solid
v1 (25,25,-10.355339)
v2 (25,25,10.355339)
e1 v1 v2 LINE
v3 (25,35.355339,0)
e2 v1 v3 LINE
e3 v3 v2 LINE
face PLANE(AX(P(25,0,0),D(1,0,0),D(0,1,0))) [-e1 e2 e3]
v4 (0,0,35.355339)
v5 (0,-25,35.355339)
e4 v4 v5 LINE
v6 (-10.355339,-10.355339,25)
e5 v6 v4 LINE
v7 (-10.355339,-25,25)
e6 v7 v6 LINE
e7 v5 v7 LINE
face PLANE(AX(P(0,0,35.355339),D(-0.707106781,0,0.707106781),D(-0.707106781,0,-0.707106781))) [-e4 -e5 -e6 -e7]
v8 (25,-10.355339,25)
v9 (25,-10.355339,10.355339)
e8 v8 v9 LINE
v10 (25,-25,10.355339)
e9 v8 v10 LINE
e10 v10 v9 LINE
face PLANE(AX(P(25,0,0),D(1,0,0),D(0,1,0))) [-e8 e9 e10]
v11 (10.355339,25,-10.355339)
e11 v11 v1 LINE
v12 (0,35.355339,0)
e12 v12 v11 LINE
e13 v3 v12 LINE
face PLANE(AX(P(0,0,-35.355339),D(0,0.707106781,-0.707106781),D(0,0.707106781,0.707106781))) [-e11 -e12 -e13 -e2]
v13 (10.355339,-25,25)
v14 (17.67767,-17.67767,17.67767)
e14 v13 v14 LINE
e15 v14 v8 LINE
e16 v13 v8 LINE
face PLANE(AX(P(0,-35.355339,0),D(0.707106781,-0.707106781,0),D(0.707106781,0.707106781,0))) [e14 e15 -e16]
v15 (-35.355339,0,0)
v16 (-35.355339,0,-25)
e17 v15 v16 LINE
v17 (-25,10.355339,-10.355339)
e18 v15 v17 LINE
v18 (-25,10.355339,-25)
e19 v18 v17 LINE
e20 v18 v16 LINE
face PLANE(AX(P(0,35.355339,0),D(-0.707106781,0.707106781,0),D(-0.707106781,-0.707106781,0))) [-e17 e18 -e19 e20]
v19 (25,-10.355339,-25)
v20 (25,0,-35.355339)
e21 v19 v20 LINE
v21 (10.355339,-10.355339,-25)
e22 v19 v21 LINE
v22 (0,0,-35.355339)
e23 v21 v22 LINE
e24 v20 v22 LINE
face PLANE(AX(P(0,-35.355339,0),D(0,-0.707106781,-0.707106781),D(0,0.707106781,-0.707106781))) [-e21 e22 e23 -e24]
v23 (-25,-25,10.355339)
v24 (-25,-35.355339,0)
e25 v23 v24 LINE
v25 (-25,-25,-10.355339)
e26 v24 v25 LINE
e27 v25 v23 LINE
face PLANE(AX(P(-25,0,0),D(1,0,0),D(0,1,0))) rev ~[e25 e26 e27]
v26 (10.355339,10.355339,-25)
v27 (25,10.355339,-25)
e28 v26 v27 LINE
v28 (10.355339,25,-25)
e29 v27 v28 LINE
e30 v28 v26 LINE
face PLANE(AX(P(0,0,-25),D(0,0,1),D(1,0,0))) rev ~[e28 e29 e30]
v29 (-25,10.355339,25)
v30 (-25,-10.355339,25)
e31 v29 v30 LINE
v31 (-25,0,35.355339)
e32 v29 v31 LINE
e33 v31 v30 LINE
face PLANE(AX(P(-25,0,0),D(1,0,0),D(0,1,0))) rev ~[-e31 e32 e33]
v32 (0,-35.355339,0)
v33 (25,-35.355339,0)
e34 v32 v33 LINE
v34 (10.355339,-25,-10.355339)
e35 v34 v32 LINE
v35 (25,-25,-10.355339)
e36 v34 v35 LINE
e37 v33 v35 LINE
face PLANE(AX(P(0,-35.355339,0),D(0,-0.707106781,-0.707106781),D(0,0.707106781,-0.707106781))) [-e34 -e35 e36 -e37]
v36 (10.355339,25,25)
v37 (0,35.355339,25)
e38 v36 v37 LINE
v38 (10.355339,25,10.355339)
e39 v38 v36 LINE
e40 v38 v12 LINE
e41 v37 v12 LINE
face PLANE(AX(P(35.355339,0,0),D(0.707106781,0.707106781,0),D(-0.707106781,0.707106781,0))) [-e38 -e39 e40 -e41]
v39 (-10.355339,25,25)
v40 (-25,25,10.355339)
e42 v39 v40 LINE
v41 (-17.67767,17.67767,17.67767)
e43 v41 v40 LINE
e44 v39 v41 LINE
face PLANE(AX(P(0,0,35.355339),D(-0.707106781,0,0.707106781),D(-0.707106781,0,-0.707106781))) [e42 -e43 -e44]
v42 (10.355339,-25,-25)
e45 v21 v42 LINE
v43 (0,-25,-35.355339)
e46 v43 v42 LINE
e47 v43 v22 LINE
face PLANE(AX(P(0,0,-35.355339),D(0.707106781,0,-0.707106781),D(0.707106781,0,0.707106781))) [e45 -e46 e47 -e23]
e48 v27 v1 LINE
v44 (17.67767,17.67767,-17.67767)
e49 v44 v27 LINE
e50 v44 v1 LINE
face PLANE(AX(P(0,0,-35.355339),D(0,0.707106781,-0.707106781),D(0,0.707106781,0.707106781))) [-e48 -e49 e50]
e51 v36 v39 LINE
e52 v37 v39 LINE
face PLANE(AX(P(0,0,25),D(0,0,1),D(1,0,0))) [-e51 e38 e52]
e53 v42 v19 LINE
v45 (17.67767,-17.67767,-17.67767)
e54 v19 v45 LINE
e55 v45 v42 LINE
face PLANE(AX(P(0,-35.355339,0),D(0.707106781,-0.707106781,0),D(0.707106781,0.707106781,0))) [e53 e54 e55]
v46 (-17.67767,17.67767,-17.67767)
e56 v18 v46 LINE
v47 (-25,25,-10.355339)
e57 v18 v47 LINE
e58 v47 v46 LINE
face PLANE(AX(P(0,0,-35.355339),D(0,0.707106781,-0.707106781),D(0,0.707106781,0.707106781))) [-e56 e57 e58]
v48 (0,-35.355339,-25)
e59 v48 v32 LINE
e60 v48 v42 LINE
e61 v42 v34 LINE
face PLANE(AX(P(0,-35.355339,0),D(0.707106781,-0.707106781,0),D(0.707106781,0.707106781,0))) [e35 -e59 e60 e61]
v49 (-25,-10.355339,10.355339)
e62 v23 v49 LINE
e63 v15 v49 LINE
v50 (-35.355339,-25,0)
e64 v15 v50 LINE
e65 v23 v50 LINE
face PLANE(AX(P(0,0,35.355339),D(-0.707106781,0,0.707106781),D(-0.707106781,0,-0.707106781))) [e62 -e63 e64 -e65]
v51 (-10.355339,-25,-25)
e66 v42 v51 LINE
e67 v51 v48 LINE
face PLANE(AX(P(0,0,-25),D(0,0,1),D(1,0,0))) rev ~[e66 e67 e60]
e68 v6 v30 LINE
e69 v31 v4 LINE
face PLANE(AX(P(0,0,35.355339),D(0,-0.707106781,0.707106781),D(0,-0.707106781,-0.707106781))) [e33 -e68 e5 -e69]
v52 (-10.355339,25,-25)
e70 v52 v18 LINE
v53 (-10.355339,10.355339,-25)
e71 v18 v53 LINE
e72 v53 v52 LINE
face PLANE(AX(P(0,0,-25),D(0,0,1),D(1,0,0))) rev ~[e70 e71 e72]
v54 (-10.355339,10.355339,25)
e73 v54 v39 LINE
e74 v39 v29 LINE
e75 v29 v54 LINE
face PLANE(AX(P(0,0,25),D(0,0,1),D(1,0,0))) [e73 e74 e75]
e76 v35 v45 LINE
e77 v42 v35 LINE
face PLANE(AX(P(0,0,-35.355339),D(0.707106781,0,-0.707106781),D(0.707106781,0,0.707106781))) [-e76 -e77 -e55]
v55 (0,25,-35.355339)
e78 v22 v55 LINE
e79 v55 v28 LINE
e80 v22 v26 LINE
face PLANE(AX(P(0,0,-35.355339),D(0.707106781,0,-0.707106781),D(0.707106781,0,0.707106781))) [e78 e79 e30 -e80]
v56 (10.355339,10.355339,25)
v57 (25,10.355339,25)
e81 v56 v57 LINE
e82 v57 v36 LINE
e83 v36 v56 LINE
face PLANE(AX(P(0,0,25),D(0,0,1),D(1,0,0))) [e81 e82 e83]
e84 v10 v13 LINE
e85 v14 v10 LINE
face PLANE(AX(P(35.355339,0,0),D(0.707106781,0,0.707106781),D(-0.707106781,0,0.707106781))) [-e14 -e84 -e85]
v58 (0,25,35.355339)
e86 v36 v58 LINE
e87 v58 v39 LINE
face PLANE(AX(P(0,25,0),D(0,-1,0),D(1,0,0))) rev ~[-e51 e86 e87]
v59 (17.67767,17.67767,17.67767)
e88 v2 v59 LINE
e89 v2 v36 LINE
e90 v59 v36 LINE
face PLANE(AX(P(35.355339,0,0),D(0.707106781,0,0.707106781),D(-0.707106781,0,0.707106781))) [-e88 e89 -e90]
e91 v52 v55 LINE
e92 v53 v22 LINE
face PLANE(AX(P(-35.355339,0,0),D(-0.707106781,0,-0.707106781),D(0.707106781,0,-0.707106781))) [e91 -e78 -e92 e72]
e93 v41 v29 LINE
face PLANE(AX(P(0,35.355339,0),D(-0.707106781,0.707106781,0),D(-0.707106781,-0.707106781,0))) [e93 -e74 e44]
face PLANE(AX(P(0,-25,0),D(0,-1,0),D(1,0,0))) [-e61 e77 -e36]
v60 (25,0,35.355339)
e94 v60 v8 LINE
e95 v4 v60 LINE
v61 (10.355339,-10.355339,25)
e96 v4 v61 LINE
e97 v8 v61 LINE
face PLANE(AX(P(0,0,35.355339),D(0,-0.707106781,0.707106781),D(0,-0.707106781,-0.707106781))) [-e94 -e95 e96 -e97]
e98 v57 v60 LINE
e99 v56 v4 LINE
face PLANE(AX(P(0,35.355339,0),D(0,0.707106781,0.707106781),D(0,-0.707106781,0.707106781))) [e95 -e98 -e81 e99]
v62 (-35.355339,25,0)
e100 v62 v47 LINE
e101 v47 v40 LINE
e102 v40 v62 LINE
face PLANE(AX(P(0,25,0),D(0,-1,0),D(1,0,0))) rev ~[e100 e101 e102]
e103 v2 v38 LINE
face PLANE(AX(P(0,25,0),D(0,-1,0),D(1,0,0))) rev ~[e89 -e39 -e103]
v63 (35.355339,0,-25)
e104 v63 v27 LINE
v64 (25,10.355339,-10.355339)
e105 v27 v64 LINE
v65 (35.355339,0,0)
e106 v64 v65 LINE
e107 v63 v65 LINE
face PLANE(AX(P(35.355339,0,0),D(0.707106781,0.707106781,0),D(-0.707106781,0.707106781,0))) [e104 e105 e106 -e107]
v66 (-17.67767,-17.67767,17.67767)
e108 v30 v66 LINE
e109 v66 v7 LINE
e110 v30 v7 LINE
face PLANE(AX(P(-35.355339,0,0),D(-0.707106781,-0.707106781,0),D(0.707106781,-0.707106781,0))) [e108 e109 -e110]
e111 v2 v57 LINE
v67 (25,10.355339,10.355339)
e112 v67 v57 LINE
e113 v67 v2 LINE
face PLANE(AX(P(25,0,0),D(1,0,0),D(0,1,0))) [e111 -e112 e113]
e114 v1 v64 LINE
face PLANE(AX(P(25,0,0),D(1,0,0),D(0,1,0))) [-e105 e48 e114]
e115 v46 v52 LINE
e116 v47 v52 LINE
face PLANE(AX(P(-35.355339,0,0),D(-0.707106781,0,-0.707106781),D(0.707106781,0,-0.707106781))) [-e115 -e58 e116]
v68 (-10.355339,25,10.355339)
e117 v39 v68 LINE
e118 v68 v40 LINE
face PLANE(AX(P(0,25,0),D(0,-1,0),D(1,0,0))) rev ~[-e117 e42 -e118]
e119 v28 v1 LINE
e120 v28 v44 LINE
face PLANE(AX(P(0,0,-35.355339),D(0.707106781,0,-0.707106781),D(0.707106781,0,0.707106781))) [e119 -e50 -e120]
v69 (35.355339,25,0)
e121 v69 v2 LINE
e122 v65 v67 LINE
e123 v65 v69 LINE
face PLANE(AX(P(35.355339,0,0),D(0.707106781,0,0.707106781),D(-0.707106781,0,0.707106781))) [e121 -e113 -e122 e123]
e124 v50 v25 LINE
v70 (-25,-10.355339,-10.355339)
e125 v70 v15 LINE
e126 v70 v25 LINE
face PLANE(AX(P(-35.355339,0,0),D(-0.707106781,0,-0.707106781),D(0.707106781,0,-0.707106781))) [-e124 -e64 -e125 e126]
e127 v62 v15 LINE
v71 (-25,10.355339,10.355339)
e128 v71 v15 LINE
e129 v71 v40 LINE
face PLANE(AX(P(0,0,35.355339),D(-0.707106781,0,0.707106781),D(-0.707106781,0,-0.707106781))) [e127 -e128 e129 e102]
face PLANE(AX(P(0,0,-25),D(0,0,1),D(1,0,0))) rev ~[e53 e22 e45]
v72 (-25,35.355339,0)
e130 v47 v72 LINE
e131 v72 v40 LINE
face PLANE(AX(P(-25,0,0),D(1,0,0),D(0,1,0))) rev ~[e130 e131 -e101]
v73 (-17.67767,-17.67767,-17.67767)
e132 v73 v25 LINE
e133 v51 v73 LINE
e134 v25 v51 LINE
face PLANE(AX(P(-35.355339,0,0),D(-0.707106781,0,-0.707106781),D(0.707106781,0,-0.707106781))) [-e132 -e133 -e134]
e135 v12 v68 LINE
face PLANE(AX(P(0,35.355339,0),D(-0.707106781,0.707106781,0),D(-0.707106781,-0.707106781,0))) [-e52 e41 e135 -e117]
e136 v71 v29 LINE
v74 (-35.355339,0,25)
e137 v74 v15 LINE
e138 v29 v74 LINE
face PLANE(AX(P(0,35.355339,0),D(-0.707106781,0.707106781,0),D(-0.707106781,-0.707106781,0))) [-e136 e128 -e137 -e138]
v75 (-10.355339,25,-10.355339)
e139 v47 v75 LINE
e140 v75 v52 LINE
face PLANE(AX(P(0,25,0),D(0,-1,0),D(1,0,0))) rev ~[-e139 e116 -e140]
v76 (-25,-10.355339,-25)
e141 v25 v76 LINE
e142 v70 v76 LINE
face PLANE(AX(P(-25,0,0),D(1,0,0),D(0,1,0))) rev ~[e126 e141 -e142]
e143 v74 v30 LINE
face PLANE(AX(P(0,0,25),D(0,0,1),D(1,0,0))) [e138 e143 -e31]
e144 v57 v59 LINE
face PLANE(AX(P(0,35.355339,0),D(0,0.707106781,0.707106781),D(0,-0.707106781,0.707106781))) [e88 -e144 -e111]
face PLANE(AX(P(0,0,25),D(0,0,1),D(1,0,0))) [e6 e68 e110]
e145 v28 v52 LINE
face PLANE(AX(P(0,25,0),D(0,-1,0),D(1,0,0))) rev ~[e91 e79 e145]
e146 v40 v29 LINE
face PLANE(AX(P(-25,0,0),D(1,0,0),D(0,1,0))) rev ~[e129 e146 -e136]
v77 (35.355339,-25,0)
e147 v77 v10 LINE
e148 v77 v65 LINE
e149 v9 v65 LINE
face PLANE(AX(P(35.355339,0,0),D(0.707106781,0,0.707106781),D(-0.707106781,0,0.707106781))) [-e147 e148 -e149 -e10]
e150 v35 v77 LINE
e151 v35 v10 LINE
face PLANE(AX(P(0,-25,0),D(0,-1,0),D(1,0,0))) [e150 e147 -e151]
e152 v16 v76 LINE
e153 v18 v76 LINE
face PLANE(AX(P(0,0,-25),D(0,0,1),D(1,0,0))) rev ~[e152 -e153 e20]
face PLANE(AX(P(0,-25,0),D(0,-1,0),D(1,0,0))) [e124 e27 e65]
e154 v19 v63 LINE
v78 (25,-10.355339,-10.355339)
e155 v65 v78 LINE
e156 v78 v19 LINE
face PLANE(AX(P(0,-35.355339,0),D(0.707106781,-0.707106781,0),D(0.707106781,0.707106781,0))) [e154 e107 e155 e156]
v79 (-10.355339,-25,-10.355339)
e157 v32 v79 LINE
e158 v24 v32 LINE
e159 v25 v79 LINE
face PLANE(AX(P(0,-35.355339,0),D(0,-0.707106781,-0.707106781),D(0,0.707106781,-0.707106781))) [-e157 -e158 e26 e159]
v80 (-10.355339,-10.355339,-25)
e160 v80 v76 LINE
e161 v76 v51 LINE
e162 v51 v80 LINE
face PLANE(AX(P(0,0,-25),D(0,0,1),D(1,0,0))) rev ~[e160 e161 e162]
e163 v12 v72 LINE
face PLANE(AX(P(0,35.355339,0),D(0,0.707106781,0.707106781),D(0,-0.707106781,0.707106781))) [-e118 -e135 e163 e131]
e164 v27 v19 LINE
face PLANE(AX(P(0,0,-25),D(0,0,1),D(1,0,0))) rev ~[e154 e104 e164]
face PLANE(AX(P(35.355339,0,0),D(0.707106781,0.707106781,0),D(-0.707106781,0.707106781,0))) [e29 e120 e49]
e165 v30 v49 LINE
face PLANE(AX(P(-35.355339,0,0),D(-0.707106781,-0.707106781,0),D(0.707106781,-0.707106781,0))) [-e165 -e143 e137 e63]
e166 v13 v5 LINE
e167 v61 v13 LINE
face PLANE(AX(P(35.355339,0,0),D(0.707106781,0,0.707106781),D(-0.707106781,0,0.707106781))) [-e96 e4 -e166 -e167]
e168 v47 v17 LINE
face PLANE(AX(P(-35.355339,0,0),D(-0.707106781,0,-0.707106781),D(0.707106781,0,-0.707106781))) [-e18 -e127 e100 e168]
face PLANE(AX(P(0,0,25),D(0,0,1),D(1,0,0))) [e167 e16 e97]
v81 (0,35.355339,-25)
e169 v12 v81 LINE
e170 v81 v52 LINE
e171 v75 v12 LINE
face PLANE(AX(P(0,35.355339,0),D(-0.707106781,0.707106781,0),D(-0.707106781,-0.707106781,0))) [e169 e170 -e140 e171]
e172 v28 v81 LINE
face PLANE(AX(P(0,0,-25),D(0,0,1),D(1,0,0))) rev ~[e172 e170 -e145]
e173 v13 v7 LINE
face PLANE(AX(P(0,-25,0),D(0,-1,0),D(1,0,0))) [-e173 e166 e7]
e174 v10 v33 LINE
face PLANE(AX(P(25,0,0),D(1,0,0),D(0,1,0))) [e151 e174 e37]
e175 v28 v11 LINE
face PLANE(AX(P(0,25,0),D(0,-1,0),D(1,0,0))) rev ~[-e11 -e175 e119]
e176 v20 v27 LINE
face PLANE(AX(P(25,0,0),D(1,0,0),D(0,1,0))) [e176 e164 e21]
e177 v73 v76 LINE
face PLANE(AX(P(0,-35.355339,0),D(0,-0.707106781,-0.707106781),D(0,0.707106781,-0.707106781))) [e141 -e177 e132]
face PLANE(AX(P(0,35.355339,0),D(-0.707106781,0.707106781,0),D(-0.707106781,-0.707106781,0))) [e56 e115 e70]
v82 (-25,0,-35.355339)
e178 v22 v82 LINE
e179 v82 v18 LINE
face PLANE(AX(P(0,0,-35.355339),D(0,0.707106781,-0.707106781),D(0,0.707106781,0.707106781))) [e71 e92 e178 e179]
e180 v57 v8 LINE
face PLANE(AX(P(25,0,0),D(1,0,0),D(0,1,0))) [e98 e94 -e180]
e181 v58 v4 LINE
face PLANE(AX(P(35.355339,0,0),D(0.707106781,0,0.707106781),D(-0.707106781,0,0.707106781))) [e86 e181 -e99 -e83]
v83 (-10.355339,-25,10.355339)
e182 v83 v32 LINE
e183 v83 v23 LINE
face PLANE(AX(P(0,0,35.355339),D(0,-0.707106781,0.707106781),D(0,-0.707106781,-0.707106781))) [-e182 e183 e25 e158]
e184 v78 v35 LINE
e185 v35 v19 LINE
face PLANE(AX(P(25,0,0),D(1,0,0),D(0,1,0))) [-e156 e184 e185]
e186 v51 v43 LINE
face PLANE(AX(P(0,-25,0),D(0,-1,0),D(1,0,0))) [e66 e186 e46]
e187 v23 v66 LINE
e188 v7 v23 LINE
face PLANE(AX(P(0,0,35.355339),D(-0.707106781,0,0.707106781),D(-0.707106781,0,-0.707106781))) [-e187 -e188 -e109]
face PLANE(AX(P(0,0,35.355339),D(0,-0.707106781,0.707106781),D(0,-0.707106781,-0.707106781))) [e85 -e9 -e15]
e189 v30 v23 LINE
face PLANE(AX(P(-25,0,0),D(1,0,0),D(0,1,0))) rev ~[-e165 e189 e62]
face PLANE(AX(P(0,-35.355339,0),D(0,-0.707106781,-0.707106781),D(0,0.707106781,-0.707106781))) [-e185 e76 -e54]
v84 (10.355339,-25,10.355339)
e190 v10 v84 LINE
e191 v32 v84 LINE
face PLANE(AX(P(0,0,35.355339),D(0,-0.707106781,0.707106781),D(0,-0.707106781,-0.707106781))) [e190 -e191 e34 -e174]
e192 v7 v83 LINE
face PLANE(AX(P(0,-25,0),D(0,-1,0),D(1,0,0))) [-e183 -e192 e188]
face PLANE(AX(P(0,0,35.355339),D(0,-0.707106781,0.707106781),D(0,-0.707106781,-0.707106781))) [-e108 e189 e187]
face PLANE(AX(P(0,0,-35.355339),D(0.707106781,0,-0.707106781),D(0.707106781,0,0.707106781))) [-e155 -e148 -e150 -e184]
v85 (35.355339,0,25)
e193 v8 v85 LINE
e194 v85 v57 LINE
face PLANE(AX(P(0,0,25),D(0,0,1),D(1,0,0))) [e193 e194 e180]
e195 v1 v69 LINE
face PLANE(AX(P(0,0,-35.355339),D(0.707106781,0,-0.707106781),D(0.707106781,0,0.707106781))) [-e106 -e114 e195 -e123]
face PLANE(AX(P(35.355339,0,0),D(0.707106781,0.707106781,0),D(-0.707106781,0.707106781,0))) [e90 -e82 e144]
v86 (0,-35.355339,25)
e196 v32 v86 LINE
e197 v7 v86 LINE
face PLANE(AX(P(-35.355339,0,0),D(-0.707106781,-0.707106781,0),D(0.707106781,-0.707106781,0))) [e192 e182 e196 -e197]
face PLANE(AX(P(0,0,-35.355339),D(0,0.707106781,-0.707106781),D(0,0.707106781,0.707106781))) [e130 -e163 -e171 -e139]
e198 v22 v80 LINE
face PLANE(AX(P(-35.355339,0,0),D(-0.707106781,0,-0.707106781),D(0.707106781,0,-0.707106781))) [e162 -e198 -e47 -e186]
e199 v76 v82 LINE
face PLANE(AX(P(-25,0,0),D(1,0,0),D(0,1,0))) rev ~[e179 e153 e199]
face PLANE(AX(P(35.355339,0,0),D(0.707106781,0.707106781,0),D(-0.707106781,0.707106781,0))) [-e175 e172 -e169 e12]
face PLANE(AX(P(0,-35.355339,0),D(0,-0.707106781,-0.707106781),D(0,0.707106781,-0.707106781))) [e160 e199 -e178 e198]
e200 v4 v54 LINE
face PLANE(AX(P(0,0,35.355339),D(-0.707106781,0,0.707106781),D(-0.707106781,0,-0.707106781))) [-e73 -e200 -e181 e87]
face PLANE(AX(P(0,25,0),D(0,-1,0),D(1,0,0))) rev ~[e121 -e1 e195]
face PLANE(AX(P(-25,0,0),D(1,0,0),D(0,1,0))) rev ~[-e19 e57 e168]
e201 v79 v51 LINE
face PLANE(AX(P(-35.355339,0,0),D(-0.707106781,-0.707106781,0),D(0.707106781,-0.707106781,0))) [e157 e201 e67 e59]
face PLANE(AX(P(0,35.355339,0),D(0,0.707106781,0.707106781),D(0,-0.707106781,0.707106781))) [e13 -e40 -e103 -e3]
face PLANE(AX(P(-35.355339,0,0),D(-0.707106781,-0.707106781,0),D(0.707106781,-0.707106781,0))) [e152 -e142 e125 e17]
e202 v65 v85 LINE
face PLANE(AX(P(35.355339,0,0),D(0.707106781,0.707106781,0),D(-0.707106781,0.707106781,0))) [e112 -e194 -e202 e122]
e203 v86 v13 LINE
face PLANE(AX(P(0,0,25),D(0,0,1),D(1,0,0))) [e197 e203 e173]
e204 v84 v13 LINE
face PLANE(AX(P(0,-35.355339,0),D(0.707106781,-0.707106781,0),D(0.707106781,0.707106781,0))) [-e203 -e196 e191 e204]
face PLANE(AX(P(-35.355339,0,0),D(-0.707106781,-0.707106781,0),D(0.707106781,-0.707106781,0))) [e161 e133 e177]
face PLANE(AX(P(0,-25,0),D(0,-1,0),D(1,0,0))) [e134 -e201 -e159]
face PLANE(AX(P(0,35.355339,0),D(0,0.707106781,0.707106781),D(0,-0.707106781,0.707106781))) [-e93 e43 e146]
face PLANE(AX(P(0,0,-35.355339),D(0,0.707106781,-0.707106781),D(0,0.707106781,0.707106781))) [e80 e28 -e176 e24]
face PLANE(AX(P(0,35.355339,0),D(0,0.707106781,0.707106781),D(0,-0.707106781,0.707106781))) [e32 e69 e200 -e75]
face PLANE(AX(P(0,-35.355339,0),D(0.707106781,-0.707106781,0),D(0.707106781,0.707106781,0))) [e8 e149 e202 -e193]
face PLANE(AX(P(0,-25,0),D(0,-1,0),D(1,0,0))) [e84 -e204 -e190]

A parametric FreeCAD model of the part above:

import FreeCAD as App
import Part
import Sketcher
from FreeCAD import Vector


def add_polygon(sketch, points):
    """Adds a closed chain of lines whose ends are joined by coincident constraints."""
    first, n = sketch.GeometryCount, len(points)
    for a, b in zip(points, points[1:] + points[:1]):
        sketch.addGeometry(Part.LineSegment(App.Vector(*a, 0), App.Vector(*b, 0)), False)
    for i in range(n):
        sketch.addConstraint(Sketcher.Constraint("Coincident", first + i, 2, first + (i + 1) % n, 1))

doc = App.newDocument("Part")
body = doc.addObject("PartDesign::Body", "Body")

# Sketch on XZ plane
sketch1 = body.newObject("Sketcher::SketchObject", "Sketch")
sketch1.AttachmentSupport = (doc.getObject("XZ_Plane"), [""])
sketch1.MapMode = "FlatFace"
add_polygon(sketch1, [(35, 0), (0, 35), (-35, 0), (0, -35)])  # lines 0-3
sketch1.addConstraint([
    Sketcher.Constraint("Symmetric", 0, 2, 2, 2, -1, 1),
    Sketcher.Constraint("Symmetric", 1, 2, 3, 2, -1, 1),
    Sketcher.Constraint("PointOnObject", 0, 2, -2),
    Sketcher.Constraint("PointOnObject", 1, 2, -1),
    Sketcher.Constraint("Perpendicular", 0, 1),
    Sketcher.Constraint("Distance", 0, 50.0),
])
pad1 = body.newObject("PartDesign::Pad", "Pad")
pad1.Profile = sketch1
pad1.Length = 50
pad1.Midplane = True

# Sketch on YZ plane
sketch2 = body.newObject("Sketcher::SketchObject", "Sketch001")
sketch2.AttachmentSupport = (doc.getObject("YZ_Plane"), [""])
sketch2.MapMode = "FlatFace"
add_polygon(sketch2, [(35, 0), (0, 35), (-35, 0), (0, -35)])  # lines 0-3
sketch2.addConstraint([
    Sketcher.Constraint("Symmetric", 0, 2, 2, 2, -1, 1),
    Sketcher.Constraint("Symmetric", 1, 2, 3, 2, -1, 1),
    Sketcher.Constraint("PointOnObject", 0, 2, -2),
    Sketcher.Constraint("PointOnObject", 1, 2, -1),
    Sketcher.Constraint("Perpendicular", 0, 1),
    Sketcher.Constraint("Distance", 0, 50.0),
])
pad2 = body.newObject("PartDesign::Pad", "Pad001")
pad2.Profile = sketch2
pad2.Length = 50
pad2.Midplane = True

# Sketch on XY plane
sketch3 = body.newObject("Sketcher::SketchObject", "Sketch002")
sketch3.AttachmentSupport = (doc.getObject("XY_Plane"), [""])
sketch3.MapMode = "FlatFace"
add_polygon(sketch3, [(-35, 0), (0, -35), (35, 0), (0, 35)])  # lines 0-3
sketch3.addConstraint([
    Sketcher.Constraint("Symmetric", 0, 2, 2, 2, -1, 1),
    Sketcher.Constraint("Symmetric", 1, 2, 3, 2, -1, 1),
    Sketcher.Constraint("PointOnObject", 0, 2, -2),
    Sketcher.Constraint("PointOnObject", 1, 2, -1),
    Sketcher.Constraint("Perpendicular", 0, 1),
    Sketcher.Constraint("Distance", 0, 50.0),
])
pad3 = body.newObject("PartDesign::Pad", "Pad002")
pad3.Profile = sketch3
pad3.Length = 50
pad3.Midplane = True

doc.recompute()
